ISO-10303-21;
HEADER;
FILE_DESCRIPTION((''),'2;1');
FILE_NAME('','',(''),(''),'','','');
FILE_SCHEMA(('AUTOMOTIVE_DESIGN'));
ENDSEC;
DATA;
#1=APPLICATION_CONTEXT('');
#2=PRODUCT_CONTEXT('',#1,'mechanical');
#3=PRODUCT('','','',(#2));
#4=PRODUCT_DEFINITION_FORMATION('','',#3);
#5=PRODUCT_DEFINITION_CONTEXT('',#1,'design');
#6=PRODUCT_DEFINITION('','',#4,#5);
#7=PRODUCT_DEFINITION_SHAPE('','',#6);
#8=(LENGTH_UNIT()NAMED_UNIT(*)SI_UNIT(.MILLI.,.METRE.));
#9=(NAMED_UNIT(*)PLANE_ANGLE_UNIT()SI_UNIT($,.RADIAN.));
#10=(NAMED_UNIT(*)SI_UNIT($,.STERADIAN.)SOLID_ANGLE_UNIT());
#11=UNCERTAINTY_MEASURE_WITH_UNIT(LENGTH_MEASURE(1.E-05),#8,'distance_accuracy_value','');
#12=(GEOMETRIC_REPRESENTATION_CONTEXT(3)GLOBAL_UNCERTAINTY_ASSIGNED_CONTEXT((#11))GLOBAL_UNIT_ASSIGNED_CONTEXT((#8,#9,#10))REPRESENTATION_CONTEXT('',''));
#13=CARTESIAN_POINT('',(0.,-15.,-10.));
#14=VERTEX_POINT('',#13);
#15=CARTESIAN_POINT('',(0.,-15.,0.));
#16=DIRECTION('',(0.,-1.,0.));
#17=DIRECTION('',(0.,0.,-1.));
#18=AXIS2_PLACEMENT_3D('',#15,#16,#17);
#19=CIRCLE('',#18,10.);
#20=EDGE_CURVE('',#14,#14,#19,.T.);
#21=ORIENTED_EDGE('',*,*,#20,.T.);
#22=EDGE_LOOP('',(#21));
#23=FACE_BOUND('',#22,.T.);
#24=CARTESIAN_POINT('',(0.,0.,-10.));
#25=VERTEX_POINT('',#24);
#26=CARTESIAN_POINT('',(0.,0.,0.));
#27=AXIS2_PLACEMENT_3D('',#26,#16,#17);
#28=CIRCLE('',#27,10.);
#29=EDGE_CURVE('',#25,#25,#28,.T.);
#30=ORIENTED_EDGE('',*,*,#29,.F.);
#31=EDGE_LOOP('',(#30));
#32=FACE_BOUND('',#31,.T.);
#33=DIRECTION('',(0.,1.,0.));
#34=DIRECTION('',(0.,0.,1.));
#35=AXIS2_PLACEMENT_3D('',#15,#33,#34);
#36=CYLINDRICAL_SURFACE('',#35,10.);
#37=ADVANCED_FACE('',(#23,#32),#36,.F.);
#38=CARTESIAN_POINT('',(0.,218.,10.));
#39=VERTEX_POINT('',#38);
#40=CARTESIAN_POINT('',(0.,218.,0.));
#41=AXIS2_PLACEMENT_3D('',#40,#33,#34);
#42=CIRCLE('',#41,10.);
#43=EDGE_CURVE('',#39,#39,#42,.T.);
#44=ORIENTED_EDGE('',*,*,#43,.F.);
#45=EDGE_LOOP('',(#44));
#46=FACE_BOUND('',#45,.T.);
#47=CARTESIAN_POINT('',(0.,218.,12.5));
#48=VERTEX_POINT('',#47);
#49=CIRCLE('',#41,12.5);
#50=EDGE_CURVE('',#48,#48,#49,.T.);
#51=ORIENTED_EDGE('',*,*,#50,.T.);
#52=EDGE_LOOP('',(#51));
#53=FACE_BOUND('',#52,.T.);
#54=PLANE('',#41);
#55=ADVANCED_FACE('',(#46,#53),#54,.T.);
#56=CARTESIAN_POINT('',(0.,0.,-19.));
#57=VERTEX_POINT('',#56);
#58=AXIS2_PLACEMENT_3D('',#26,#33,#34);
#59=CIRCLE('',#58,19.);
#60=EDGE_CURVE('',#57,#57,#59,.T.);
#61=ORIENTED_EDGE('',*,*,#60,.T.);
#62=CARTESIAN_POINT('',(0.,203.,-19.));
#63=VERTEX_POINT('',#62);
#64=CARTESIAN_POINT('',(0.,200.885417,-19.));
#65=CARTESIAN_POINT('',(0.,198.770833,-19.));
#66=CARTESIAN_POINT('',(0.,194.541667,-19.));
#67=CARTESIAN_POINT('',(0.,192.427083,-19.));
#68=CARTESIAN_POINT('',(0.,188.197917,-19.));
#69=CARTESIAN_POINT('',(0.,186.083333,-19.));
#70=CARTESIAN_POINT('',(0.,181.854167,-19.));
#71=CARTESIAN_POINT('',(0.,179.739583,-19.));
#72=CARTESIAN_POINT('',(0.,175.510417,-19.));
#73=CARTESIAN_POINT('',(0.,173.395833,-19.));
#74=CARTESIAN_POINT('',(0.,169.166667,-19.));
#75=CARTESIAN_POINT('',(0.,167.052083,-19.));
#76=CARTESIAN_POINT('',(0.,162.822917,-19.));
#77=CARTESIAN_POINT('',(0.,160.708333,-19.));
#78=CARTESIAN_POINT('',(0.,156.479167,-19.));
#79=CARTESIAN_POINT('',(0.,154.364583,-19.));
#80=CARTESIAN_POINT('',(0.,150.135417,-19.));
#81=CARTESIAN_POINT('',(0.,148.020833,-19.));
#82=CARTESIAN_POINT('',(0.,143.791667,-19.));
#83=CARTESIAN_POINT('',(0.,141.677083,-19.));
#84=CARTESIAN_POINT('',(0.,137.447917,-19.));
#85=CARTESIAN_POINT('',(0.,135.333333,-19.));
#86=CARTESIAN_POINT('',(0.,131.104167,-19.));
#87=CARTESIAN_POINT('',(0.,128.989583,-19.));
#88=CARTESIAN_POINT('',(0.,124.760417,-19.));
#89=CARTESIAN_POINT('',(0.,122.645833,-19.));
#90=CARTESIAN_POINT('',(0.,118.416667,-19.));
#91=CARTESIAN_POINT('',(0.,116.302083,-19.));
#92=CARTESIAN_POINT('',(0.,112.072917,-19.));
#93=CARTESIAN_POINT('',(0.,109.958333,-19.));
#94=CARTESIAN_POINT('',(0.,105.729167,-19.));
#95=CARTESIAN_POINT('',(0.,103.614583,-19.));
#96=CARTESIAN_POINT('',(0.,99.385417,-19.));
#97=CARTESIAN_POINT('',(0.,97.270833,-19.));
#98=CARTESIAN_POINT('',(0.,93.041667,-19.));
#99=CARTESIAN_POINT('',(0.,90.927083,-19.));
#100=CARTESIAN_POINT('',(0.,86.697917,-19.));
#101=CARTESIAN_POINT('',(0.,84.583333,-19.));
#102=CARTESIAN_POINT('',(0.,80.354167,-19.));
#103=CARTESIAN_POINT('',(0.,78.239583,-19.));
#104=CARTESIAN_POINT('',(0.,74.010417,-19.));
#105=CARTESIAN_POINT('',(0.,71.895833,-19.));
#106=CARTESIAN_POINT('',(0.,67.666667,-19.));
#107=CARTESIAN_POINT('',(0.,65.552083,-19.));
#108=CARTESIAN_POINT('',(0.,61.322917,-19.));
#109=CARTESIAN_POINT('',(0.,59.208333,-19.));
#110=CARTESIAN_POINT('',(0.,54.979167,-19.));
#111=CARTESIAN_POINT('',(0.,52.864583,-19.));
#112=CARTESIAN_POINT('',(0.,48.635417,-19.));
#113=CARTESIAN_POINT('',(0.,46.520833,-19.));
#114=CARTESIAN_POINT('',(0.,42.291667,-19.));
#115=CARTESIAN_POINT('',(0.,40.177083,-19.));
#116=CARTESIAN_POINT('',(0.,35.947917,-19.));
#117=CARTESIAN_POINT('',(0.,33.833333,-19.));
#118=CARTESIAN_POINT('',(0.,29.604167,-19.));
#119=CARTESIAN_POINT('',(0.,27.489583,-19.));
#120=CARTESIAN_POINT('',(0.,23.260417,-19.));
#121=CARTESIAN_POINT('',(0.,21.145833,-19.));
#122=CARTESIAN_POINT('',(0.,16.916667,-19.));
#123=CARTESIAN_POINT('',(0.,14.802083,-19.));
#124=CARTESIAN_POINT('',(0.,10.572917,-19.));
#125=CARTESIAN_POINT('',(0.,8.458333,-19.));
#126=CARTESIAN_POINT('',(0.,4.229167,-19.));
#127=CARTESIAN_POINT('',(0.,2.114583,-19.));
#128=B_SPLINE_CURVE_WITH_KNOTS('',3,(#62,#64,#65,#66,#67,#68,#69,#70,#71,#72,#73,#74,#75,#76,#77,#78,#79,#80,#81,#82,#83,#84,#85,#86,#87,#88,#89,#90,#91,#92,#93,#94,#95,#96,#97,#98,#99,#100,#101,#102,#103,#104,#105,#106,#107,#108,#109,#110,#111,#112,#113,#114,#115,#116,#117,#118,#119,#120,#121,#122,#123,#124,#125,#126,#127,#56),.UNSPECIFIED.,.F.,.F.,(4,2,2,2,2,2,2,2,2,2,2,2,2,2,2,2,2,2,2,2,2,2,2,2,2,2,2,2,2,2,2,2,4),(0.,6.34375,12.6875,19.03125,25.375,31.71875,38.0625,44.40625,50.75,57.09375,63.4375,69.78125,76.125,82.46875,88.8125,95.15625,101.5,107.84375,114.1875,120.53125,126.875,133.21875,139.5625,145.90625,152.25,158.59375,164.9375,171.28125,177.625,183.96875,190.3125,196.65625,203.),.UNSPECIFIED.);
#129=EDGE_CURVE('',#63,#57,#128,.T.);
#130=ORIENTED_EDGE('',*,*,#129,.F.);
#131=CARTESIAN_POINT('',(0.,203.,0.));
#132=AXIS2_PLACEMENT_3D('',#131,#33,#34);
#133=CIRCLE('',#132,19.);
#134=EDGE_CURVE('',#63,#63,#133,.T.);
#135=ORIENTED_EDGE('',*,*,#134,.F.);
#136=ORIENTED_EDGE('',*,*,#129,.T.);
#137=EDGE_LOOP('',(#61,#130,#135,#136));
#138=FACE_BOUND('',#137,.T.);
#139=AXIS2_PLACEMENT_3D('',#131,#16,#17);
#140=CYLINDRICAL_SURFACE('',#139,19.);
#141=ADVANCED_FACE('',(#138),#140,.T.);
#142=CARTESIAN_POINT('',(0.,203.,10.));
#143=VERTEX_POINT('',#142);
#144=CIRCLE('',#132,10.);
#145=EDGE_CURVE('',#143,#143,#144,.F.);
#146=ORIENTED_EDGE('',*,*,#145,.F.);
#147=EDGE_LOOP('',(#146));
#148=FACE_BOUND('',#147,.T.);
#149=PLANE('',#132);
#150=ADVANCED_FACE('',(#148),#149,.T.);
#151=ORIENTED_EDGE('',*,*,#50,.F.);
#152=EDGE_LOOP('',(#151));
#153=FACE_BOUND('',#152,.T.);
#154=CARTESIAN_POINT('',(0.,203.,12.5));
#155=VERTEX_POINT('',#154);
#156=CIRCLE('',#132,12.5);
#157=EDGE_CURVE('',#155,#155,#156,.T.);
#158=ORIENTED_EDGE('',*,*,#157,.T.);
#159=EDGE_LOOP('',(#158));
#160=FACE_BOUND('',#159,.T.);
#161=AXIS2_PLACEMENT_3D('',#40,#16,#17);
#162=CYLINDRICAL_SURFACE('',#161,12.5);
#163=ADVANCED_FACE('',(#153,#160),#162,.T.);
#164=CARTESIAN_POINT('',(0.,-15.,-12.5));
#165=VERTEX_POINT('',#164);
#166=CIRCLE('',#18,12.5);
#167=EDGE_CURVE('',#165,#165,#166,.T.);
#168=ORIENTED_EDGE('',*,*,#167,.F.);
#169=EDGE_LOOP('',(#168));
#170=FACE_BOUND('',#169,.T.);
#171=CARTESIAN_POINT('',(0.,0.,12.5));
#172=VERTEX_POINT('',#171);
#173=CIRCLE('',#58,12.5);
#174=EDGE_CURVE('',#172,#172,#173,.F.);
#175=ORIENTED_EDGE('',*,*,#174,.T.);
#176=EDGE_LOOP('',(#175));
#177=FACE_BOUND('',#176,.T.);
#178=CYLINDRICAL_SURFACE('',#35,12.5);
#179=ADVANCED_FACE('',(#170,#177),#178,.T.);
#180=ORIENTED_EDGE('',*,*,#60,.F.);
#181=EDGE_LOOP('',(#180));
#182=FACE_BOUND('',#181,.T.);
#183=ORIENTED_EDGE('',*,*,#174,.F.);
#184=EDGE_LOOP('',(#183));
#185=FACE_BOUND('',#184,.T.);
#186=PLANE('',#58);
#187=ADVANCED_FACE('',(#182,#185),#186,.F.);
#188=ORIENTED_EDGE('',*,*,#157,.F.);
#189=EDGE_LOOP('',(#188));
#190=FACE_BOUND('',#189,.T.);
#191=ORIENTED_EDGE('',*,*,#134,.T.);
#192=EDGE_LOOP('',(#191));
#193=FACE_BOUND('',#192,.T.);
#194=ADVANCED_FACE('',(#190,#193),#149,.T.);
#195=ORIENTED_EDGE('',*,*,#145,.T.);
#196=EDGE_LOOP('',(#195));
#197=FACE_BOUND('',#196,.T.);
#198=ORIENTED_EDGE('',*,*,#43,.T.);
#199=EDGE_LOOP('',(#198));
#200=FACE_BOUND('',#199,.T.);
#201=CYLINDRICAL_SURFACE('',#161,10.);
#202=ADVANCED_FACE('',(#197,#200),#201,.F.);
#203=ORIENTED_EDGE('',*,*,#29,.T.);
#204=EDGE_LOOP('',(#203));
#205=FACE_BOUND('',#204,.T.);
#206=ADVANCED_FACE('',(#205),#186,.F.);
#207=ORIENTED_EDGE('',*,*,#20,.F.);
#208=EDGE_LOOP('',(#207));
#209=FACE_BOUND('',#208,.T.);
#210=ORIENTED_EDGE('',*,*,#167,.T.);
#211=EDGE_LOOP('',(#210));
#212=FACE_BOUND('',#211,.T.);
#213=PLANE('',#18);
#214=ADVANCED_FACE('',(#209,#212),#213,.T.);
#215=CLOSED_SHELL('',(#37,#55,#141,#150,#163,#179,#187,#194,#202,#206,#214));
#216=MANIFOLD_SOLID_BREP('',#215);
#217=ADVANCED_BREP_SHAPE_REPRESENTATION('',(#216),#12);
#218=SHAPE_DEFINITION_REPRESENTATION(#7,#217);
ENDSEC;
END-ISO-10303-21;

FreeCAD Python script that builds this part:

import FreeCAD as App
import Part
import Sketcher

doc = App.newDocument("Part")
params = doc.addObject("Spreadsheet::Sheet", "Params")
for row, (alias, value) in enumerate([
    ("sketch1_diameter", "38 mm"),
    ("pad1_length", "203 mm"),
    ("sketch2_diameter", "25 mm"),
    ("sketch2_diameter2", "20 mm"),
    ("pad2_length", "15 mm"),
    ("sketch3_diameter", "25 mm"),
    ("sketch3_diameter2", "20 mm"),
    ("pad3_length", "15 mm"),
], start=1):
    params.set(f"A{row}", alias)
    params.set(f"B{row}", "=" + value)
    params.setAlias(f"B{row}", alias)

body = doc.addObject("PartDesign::Body", "Body")

# Sketch on XZ plane
sketch1 = doc.addObject("Sketcher::SketchObject", "Sketch")
body.addObject(sketch1)
sketch1.AttachmentSupport = (doc.XZ_Plane, [""])
sketch1.MapMode = "FlatFace"
sketch1.addGeometry(Part.Circle(App.Vector(0, 0, 0), App.Vector(0, 0, 1), 19), False)
sketch1.addConstraint([
    Sketcher.Constraint("Coincident", 0, 3, -1, 1),
    Sketcher.Constraint("Diameter", 0, 38.0),
])
sketch1.setExpression("Constraints[1]", "Params.sketch1_diameter")
pad1 = doc.addObject("PartDesign::Pad", "Pad")
body.addObject(pad1)
pad1.Profile = sketch1
pad1.setExpression("Length", "Params.pad1_length")
pad1.Reversed = True

# Sketch on XZ plane
sketch2 = doc.addObject("Sketcher::SketchObject", "Sketch001")
body.addObject(sketch2)
sketch2.AttachmentSupport = (doc.XZ_Plane, [""])
sketch2.MapMode = "FlatFace"
sketch2.addGeometry([
    Part.Circle(App.Vector(0, 0, 0), App.Vector(0, 0, 1), 12.5),
    Part.Circle(App.Vector(0, 0, 0), App.Vector(0, 0, 1), 10),
], False)
sketch2.addConstraint([
    Sketcher.Constraint("Coincident", 0, 3, -1, 1),
    Sketcher.Constraint("Coincident", 1, 3, -1, 1),
    Sketcher.Constraint("Diameter", 0, 25.0),
    Sketcher.Constraint("Diameter", 1, 20.0),
])
sketch2.setExpression("Constraints[2]", "Params.sketch2_diameter")
sketch2.setExpression("Constraints[3]", "Params.sketch2_diameter2")
pad2 = doc.addObject("PartDesign::Pad", "Pad001")
body.addObject(pad2)
pad2.Profile = sketch2
pad2.setExpression("Length", "Params.pad2_length")

# Sketch on XZ plane
sketch3 = doc.addObject("Sketcher::SketchObject", "Sketch002")
body.addObject(sketch3)
sketch3.AttachmentSupport = (doc.XZ_Plane, [""])
sketch3.MapMode = "FlatFace"
sketch3.AttachmentOffset = App.Placement(App.Vector(0, 0, -218), App.Rotation())
sketch3.addGeometry([
    Part.Circle(App.Vector(0, 0, 0), App.Vector(0, 0, 1), 12.5),
    Part.Circle(App.Vector(0, 0, 0), App.Vector(0, 0, 1), 10),
], False)
sketch3.addConstraint([
    Sketcher.Constraint("Coincident", 0, 3, -1, 1),
    Sketcher.Constraint("Coincident", 1, 3, -1, 1),
    Sketcher.Constraint("Diameter", 0, 25.0),
    Sketcher.Constraint("Diameter", 1, 20.0),
])
sketch3.setExpression("Constraints[2]", "Params.sketch3_diameter")
sketch3.setExpression("Constraints[3]", "Params.sketch3_diameter2")
pad3 = doc.addObject("PartDesign::Pad", "Pad002")
body.addObject(pad3)
pad3.Profile = sketch3
pad3.setExpression("Length", "Params.pad3_length")

doc.recompute()
